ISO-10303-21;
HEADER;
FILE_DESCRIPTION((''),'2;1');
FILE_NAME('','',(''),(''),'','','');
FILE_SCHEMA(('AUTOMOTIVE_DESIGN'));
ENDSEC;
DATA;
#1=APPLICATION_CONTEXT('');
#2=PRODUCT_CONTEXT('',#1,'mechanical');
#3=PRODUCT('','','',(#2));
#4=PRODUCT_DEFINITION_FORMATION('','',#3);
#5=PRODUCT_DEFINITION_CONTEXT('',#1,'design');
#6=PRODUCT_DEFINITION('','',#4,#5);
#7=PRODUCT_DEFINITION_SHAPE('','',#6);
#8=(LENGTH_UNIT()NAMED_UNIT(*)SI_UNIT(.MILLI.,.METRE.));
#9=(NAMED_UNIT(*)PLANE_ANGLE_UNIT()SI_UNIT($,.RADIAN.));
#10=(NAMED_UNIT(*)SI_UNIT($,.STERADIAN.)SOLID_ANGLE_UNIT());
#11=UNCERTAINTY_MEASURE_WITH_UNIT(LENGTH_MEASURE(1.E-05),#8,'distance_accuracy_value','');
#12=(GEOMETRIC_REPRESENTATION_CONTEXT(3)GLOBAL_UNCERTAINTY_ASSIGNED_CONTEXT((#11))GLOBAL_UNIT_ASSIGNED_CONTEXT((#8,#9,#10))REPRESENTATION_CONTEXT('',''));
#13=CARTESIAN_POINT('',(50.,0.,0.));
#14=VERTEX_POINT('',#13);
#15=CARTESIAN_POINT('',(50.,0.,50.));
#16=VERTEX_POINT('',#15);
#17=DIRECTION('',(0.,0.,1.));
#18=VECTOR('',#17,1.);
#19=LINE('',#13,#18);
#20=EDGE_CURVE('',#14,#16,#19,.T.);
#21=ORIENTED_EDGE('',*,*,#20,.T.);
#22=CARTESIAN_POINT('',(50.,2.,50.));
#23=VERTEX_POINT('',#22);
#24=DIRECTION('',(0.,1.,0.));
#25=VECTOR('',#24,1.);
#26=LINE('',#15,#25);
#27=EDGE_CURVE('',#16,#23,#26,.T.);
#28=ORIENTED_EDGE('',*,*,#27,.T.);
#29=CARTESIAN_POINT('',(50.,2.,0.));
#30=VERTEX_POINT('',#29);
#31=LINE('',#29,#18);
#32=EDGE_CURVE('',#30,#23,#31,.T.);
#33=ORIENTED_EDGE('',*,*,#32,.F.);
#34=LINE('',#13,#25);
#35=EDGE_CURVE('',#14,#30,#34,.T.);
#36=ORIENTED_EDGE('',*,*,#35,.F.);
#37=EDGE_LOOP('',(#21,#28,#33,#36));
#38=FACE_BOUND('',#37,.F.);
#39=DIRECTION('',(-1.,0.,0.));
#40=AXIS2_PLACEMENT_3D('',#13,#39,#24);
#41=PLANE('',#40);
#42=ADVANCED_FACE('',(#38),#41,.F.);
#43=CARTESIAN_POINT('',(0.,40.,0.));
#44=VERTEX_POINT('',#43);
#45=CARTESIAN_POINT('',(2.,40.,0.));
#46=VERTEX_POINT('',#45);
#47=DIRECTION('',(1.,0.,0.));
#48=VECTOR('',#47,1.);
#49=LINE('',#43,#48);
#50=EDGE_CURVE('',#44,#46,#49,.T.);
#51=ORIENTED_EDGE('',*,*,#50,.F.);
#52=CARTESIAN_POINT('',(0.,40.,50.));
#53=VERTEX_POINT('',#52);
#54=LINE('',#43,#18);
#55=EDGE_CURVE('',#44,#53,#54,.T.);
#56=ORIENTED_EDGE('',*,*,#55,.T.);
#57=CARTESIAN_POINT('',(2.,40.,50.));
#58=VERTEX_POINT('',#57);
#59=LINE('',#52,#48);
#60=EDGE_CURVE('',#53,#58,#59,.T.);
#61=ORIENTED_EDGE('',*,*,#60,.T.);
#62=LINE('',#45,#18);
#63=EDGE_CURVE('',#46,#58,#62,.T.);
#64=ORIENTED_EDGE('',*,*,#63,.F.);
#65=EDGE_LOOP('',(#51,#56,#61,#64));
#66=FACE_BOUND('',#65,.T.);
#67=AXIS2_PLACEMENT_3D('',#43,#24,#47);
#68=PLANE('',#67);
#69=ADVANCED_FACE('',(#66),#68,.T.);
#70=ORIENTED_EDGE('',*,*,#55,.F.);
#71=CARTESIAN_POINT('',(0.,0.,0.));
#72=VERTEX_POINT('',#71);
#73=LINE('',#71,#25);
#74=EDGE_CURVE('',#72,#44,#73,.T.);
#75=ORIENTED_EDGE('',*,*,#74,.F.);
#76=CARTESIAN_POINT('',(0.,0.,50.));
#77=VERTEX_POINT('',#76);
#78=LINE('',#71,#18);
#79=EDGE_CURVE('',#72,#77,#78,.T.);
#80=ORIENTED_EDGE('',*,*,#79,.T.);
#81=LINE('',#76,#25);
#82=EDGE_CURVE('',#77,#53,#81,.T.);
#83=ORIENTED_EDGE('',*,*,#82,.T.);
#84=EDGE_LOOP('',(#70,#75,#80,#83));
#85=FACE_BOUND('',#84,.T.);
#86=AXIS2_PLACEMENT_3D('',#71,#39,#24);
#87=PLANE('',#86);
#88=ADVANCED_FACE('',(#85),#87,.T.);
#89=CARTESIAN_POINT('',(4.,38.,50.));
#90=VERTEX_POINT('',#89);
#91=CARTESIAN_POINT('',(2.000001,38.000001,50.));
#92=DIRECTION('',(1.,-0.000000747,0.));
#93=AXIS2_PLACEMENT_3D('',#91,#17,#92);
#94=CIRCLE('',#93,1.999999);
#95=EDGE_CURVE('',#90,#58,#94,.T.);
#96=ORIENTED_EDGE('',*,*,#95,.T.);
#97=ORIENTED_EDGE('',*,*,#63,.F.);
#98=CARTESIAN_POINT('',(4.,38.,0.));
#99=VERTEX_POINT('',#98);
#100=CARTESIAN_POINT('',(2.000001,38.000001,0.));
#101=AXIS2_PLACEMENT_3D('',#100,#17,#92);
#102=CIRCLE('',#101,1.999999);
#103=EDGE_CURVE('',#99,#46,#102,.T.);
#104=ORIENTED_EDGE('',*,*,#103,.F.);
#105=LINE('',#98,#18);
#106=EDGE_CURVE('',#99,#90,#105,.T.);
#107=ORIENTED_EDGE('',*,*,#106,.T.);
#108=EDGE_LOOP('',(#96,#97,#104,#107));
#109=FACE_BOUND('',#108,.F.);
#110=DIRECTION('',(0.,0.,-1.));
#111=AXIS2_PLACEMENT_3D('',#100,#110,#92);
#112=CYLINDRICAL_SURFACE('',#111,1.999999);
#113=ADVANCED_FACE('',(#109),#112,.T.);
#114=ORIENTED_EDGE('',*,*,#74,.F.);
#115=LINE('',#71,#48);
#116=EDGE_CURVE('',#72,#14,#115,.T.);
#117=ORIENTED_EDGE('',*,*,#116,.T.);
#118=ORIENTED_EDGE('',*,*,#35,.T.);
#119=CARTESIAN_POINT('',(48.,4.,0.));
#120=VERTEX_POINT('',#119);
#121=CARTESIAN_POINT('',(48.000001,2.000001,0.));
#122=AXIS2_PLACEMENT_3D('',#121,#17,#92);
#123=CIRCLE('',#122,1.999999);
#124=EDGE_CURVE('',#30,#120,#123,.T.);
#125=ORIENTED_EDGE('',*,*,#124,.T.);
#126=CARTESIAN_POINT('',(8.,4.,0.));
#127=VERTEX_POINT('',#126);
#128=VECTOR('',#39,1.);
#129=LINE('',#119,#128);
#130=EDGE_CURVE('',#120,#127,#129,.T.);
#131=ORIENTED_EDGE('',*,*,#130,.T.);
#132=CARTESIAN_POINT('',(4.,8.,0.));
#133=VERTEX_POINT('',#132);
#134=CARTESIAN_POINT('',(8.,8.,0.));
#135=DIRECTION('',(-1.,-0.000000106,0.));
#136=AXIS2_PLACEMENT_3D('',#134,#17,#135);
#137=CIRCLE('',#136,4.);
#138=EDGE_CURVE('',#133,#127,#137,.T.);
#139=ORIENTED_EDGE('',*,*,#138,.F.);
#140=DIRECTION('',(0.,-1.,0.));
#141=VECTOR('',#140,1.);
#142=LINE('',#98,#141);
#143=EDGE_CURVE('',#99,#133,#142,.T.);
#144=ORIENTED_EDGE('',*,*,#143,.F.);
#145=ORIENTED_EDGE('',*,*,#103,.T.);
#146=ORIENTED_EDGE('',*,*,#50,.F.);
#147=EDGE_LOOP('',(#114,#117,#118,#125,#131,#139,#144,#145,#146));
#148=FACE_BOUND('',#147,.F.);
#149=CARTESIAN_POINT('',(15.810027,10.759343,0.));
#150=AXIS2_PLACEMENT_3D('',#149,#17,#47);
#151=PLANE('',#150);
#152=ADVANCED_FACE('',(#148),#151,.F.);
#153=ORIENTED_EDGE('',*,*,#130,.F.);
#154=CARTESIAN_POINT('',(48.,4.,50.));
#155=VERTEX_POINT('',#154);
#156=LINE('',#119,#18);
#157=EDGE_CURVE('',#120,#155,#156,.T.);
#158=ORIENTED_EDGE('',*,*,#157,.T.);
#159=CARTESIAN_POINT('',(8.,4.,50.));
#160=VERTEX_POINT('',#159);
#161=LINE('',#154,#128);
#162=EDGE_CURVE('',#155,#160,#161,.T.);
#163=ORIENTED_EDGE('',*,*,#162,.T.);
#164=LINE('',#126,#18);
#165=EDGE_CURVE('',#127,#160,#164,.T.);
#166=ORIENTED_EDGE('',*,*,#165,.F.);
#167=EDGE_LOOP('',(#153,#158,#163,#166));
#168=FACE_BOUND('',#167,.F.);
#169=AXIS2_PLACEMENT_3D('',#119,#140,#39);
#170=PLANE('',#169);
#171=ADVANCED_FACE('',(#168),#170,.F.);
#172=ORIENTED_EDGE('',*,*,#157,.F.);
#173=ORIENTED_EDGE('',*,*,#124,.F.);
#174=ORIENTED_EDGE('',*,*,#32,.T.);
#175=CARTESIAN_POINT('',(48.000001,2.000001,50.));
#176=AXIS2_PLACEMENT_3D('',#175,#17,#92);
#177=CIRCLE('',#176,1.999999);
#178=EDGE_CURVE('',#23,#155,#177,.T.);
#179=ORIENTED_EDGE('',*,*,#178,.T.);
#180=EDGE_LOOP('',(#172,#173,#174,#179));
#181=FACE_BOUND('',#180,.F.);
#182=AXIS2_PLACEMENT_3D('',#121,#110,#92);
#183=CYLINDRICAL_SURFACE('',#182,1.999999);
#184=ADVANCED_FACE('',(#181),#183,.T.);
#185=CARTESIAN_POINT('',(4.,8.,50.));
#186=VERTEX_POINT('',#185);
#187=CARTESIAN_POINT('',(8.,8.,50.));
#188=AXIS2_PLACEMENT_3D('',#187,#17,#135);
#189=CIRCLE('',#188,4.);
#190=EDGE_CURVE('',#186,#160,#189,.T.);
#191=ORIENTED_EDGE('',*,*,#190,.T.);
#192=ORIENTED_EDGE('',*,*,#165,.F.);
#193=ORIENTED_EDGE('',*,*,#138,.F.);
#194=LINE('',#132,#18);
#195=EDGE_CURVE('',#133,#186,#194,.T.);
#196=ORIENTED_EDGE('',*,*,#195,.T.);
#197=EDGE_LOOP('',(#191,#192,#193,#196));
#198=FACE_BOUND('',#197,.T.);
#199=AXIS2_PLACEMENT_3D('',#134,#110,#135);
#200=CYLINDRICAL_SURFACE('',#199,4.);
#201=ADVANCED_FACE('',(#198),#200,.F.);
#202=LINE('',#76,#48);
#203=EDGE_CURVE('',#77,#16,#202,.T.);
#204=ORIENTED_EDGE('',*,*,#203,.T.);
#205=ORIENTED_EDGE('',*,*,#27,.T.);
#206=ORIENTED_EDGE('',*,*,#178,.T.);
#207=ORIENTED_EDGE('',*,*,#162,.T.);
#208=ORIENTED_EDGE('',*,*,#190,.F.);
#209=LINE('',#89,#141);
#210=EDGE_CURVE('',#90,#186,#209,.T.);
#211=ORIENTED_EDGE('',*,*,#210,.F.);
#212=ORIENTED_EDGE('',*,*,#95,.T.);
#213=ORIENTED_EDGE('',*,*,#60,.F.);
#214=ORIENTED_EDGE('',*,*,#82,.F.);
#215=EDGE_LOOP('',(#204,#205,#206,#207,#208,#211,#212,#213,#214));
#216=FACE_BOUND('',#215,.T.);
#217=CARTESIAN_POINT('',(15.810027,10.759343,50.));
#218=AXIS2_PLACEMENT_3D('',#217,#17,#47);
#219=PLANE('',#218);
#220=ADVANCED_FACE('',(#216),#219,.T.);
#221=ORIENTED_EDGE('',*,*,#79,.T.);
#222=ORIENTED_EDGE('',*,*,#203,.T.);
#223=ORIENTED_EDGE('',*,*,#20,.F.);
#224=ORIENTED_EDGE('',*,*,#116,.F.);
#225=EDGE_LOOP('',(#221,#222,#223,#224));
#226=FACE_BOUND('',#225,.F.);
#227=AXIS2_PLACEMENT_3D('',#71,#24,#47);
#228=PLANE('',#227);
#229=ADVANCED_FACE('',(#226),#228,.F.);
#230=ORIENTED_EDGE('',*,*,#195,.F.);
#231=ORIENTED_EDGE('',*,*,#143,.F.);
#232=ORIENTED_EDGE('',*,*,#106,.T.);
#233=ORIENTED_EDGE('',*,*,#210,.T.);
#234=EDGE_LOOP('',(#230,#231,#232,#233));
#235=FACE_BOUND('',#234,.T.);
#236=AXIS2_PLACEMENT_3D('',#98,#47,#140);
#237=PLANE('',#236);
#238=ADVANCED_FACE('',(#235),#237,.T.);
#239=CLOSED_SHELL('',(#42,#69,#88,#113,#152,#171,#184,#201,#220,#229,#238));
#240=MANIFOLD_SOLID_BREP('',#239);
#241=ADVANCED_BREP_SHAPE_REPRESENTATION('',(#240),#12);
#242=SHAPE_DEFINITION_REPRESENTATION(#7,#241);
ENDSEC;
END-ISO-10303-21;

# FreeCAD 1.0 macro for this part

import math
import FreeCAD as App
import Part
import Sketcher
from FreeCAD import Vector

doc = App.newDocument("Part")
body = doc.addObject("PartDesign::Body", "Body")

# Sketch on XY plane
sketch1 = body.newObject("Sketcher::SketchObject", "Sketch")
sketch1.AttachmentSupport = (doc.getObject("XY_Plane"), [""])
sketch1.MapMode = "FlatFace"
sketch1.addGeometry([
    Part.LineSegment(Vector(0, 0, 0), Vector(50, 0, 0)),  # 0
    Part.LineSegment(Vector(50, 0, 0), Vector(50, 2, 0)),  # 1
    Part.ArcOfCircle(Part.Circle(Vector(48.000001, 2.000001, 0), Vector(0, 0, 1), 1.999999), math.radians(-0.000043), math.radians(90.000043)),  # 2
    Part.LineSegment(Vector(48, 4, 0), Vector(8, 4, 0)),  # 3
    Part.ArcOfCircle(Part.Circle(Vector(8, 8, 0), Vector(0, 0, 1), 4), math.radians(-179.999994), math.radians(-90.000006)),  # 4
    Part.LineSegment(Vector(4, 8, 0), Vector(4, 38, 0)),  # 5
    Part.ArcOfCircle(Part.Circle(Vector(2.000001, 38.000001, 0), Vector(0, 0, 1), 1.999999), math.radians(-0.000043), math.radians(90.000043)),  # 6
    Part.LineSegment(Vector(2, 40, 0), Vector(0, 40, 0)),  # 7
    Part.LineSegment(Vector(0, 40, 0), Vector(0, 0, 0)),  # 8
], False)
sketch1.addConstraint([
    Sketcher.Constraint("Coincident", 0, 2, 1, 1),
    Sketcher.Constraint("Tangent", 1, 2, 2, 1),
    Sketcher.Constraint("Tangent", 2, 2, 3, 1),
    Sketcher.Constraint("Tangent", 3, 2, 4, 2),
    Sketcher.Constraint("Tangent", 4, 1, 5, 1),
    Sketcher.Constraint("Tangent", 5, 2, 6, 1),
    Sketcher.Constraint("Tangent", 6, 2, 7, 1),
    Sketcher.Constraint("Coincident", 7, 2, 8, 1),
    Sketcher.Constraint("Coincident", 8, 2, 0, 1),
    Sketcher.Constraint("Horizontal", 0),
    Sketcher.Constraint("Vertical", 1),
    Sketcher.Constraint("Horizontal", 3),
    Sketcher.Constraint("Vertical", 5),
    Sketcher.Constraint("Horizontal", 7),
    Sketcher.Constraint("Vertical", 8),
    Sketcher.Constraint("Coincident", 8, 2, -1, 1),
    Sketcher.Constraint("Equal", 2, 6),
    Sketcher.Constraint("Equal", 7, 1),
    Sketcher.Constraint("Equal", 3, 8),
    Sketcher.Constraint("Radius", 2, 1.999999),
    Sketcher.Constraint("Radius", 4, 4.0),
    Sketcher.Constraint("DistanceX", 0, 1, 0, 2, 50.0),
    Sketcher.Constraint("DistanceX", 3, 2, 3, 1, 40.0),
])
pad1 = body.newObject("PartDesign::Pad", "Pad")
pad1.Profile = sketch1
pad1.Length = 50

doc.recompute()
